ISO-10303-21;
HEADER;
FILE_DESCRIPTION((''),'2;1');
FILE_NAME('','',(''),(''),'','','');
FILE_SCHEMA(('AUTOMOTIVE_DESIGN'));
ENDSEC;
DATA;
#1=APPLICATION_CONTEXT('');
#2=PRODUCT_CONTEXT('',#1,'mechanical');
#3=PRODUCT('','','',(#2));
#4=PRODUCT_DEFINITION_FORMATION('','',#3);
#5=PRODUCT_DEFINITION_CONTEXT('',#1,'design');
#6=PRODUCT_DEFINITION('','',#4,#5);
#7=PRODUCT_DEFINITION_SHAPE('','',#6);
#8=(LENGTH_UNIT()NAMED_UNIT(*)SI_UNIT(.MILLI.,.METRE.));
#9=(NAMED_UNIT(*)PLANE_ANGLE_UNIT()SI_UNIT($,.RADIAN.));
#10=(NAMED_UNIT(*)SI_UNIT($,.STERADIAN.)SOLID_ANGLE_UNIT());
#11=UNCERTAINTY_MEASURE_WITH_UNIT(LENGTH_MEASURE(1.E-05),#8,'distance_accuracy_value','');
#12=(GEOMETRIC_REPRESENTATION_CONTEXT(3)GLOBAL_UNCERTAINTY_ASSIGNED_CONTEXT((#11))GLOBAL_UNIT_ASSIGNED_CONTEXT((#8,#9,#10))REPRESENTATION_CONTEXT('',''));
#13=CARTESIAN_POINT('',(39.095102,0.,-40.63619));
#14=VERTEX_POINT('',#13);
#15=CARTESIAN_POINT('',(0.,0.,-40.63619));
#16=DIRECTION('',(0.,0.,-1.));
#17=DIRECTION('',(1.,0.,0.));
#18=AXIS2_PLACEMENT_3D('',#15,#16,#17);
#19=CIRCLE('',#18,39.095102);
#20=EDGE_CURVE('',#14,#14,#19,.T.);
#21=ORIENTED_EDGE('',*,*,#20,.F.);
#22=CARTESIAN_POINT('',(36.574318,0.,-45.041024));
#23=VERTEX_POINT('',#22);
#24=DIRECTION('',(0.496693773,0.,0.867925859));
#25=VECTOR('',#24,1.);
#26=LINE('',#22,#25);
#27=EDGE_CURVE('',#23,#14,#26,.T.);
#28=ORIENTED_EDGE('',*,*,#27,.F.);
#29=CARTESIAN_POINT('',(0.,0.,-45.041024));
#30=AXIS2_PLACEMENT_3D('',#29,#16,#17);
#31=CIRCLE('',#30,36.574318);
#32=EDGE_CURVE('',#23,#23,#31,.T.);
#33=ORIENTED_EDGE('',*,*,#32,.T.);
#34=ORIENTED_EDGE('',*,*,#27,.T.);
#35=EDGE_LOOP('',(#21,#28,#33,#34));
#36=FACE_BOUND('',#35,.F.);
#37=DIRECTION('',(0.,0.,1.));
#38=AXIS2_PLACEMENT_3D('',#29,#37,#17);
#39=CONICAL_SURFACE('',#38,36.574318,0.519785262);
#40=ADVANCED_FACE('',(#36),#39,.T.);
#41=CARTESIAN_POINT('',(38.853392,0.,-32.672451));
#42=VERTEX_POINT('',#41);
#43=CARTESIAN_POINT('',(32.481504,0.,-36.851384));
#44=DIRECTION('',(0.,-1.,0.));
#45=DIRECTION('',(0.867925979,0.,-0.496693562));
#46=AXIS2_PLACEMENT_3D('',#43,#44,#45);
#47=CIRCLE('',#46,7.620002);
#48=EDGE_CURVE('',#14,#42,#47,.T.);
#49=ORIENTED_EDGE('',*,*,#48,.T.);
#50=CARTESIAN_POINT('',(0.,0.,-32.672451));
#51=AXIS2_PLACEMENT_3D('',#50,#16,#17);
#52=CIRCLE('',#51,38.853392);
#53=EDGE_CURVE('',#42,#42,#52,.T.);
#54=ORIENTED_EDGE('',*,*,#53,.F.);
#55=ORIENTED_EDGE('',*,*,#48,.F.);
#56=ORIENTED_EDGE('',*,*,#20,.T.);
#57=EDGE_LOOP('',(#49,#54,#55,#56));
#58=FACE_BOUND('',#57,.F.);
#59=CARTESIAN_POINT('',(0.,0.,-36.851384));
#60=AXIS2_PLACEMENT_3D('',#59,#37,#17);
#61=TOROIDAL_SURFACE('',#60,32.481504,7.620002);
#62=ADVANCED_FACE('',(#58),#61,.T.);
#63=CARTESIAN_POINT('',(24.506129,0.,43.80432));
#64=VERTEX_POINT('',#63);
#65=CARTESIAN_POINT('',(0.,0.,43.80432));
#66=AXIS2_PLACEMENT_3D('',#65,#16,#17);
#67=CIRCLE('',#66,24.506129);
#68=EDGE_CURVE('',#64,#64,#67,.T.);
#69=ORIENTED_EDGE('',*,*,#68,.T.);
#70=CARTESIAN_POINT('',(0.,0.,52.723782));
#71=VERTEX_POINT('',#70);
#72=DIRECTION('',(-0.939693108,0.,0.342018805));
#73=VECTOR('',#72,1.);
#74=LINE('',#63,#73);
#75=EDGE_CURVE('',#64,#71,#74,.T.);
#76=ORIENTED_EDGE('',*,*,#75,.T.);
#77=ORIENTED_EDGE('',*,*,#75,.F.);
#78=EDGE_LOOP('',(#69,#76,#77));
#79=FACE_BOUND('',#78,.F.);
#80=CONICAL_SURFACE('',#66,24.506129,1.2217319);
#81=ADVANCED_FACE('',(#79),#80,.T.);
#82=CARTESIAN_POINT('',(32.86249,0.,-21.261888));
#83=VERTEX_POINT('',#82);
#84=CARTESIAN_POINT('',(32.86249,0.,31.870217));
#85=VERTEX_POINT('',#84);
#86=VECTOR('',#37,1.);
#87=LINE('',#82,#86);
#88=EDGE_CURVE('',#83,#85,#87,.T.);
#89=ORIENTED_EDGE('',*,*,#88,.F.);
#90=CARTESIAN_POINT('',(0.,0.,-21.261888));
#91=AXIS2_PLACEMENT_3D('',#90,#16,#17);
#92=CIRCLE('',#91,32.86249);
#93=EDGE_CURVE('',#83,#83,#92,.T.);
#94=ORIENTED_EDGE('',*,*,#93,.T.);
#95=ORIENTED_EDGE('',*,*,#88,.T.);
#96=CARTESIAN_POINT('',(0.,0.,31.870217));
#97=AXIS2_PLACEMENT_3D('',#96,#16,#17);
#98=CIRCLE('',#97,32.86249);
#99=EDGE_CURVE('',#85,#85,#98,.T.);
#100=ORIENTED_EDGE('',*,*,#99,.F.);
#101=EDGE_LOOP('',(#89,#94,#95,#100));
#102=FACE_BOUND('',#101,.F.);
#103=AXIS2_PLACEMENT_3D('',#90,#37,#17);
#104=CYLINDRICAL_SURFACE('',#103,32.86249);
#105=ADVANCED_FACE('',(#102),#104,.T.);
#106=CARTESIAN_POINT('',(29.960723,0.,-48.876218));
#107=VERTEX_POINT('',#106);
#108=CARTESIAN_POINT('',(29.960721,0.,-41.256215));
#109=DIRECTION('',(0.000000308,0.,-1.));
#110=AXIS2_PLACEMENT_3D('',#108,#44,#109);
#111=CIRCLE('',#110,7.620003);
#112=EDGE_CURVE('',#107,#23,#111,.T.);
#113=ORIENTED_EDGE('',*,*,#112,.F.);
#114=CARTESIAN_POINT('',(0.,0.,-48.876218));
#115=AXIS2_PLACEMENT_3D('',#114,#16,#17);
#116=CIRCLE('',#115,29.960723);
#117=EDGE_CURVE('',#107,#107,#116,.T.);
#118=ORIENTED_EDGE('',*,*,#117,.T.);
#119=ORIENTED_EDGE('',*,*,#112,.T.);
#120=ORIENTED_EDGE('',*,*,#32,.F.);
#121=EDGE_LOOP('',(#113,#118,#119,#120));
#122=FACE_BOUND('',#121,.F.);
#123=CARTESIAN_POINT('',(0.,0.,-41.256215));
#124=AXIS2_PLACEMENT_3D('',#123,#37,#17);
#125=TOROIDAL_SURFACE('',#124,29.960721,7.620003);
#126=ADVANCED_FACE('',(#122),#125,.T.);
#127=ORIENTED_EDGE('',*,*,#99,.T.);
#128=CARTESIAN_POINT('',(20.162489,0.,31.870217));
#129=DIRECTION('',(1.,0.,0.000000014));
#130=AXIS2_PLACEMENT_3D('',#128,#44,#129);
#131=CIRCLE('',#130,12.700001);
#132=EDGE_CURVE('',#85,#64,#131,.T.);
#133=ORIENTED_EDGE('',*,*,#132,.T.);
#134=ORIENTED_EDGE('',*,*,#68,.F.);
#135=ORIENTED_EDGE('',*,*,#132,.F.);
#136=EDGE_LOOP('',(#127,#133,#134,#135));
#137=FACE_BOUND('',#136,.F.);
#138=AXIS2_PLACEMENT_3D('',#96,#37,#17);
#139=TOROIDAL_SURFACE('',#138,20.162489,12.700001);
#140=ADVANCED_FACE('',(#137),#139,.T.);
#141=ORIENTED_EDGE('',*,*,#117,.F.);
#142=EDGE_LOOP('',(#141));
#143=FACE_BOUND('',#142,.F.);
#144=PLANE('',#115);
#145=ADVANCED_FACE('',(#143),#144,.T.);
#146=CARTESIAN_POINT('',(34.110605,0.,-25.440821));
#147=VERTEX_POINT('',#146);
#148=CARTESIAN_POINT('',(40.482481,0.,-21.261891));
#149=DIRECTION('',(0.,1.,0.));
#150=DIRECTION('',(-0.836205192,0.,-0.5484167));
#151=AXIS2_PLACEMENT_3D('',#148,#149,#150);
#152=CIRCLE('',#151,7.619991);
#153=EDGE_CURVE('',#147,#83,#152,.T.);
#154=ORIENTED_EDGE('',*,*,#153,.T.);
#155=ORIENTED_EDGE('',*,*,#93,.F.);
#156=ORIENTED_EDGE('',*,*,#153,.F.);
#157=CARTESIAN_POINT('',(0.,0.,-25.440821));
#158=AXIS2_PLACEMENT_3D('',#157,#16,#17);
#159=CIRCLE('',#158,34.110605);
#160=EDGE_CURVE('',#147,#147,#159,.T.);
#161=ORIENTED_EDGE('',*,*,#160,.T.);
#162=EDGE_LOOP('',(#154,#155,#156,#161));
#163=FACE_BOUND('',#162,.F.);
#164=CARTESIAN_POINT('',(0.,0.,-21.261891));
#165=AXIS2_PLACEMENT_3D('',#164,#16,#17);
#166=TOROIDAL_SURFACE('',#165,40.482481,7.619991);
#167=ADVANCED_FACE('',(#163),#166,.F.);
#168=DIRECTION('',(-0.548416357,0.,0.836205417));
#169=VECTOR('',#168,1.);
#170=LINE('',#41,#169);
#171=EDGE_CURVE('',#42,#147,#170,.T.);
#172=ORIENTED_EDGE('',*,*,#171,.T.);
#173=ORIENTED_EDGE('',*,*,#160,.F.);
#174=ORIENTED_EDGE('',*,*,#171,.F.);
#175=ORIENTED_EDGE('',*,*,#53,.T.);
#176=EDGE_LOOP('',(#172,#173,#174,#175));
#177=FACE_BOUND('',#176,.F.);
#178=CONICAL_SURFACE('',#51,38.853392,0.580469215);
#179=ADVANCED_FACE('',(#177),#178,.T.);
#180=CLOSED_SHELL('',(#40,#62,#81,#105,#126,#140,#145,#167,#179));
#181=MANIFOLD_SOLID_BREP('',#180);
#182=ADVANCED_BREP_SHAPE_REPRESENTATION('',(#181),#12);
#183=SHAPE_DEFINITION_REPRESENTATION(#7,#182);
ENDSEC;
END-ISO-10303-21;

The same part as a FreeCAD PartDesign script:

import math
import FreeCAD as App
import Part
import Sketcher
Q = App.Units.Quantity

doc = App.newDocument("Part")
params = doc.addObject("Spreadsheet::Sheet", "Params")
for row, (alias, value) in enumerate([
    ("sketch1_radius", "0.3000001 in"),
    ("sketch1_radius2", "0.5 in"),
    ("sketch1_height", "4 in"),
    ("revolution_angle", "360 deg"),
], start=1):
    params.set(f"A{row}", alias)
    params.set(f"B{row}", "=" + value)
    params.setAlias(f"B{row}", alias)

body = doc.addObject("PartDesign::Body", "Body")

# Sketch on XZ plane
sketch1 = body.newObject("Sketcher::SketchObject", "Sketch")
sketch1.AttachmentSupport = (doc.getObject("XZ_Plane"), [""])
sketch1.MapMode = "FlatFace"
sketch1.addGeometry(Part.LineSegment(App.Vector(24.5, 43.8, 0), App.Vector(0, 52.7, 0)), False)
sketch1.addGeometry(Part.LineSegment(App.Vector(0, 52.7, 0), App.Vector(0, -48.9, 0)), False)
sketch1.addGeometry(Part.LineSegment(App.Vector(0, -48.9, 0), App.Vector(30, -48.9, 0)), False)
sketch1.addGeometry(Part.ArcOfCircle(Part.Circle(App.Vector(30, -41.3, 0), App.Vector(0, 0, 1), 7.6), math.radians(-90), math.radians(-30)), False)
sketch1.addGeometry(Part.LineSegment(App.Vector(36.6, -45, 0), App.Vector(39.1, -40.6, 0)), False)
sketch1.addGeometry(Part.ArcOfCircle(Part.Circle(App.Vector(32.5, -36.9, 0), App.Vector(0, 0, 1), 7.6), math.radians(-30), math.radians(33)), False)
sketch1.addGeometry(Part.LineSegment(App.Vector(38.9, -32.7, 0), App.Vector(34.1, -25.4, 0)), False)
sketch1.addGeometry(Part.ArcOfCircle(Part.Circle(App.Vector(40.5, -21.3, 0), App.Vector(0, 0, 1), 7.6), math.radians(180), math.radians(213)), False)
sketch1.addGeometry(Part.LineSegment(App.Vector(32.9, -21.3, 0), App.Vector(32.9, 31.9, 0)), False)
sketch1.addGeometry(Part.ArcOfCircle(Part.Circle(App.Vector(20.2, 31.9, 0), App.Vector(0, 0, 1), 12.7), math.radians(0), math.radians(70)), False)
sketch1.addConstraint(Sketcher.Constraint("Coincident", 0, 2, 1, 1))
sketch1.addConstraint(Sketcher.Constraint("Coincident", 1, 2, 2, 1))
sketch1.addConstraint(Sketcher.Constraint("Tangent", 2, 2, 3, 1))
sketch1.addConstraint(Sketcher.Constraint("Tangent", 3, 2, 4, 1))
sketch1.addConstraint(Sketcher.Constraint("Tangent", 4, 2, 5, 1))
sketch1.addConstraint(Sketcher.Constraint("Tangent", 5, 2, 6, 1))
sketch1.addConstraint(Sketcher.Constraint("Tangent", 6, 2, 7, 2))
sketch1.addConstraint(Sketcher.Constraint("Tangent", 7, 1, 8, 1))
sketch1.addConstraint(Sketcher.Constraint("Tangent", 8, 2, 9, 1))
sketch1.addConstraint(Sketcher.Constraint("Tangent", 9, 2, 0, 1))
sketch1.addConstraint(Sketcher.Constraint("Vertical", 1))
sketch1.addConstraint(Sketcher.Constraint("Horizontal", 2))
sketch1.addConstraint(Sketcher.Constraint("Vertical", 8))
sketch1.addConstraint(Sketcher.Constraint("Equal", 3, 5))
sketch1.addConstraint(Sketcher.Constraint("PointOnObject", 0, 2, -2))
sketch1.addConstraint(Sketcher.Constraint("Radius", 3, Q("0.3000001 in")))
sketch1.addConstraint(Sketcher.Constraint("Radius", 9, Q("0.5 in")))
sketch1.addConstraint(Sketcher.Constraint("DistanceY", 1, 2, 1, 1, Q("4 in")))
sketch1.addConstraint(Sketcher.Constraint("Radius", 7, Q("7.619991 mm")))
sketch1.addConstraint(Sketcher.Constraint("DistanceX", -1, 1, 4, 2, Q("39.095102 mm")))
sketch1.addConstraint(Sketcher.Constraint("DistanceY", 5, 3, 9, 3, Q("68.721601 mm")))
sketch1.addConstraint(Sketcher.Constraint("DistanceX", 5, 3, 4, 2, Q("6.613598 mm")))
sketch1.addConstraint(Sketcher.Constraint("DistanceY", 4, 2, 7, 3, Q("19.374299 mm")))
sketch1.addConstraint(Sketcher.Constraint("DistanceX", 5, 3, 6, 2, Q("1.629101 mm")))
sketch1.addConstraint(Sketcher.Constraint("DistanceX", 2, 1, 2, 2, Q("29.960723 mm")))
sketch1.addConstraint(Sketcher.Constraint("DistanceY", 7, 3, -1, 1, Q("21.261891 mm")))
sketch1.setExpression("Constraints[15]", "Params.sketch1_radius")
sketch1.setExpression("Constraints[16]", "Params.sketch1_radius2")
sketch1.setExpression("Constraints[17]", "Params.sketch1_height")
revolution = body.newObject("PartDesign::Revolution", "Revolution")
revolution.Profile = sketch1
revolution.ReferenceAxis = (sketch1, ["V_Axis"])
revolution.setExpression("Angle", "Params.revolution_angle")

doc.recompute()
